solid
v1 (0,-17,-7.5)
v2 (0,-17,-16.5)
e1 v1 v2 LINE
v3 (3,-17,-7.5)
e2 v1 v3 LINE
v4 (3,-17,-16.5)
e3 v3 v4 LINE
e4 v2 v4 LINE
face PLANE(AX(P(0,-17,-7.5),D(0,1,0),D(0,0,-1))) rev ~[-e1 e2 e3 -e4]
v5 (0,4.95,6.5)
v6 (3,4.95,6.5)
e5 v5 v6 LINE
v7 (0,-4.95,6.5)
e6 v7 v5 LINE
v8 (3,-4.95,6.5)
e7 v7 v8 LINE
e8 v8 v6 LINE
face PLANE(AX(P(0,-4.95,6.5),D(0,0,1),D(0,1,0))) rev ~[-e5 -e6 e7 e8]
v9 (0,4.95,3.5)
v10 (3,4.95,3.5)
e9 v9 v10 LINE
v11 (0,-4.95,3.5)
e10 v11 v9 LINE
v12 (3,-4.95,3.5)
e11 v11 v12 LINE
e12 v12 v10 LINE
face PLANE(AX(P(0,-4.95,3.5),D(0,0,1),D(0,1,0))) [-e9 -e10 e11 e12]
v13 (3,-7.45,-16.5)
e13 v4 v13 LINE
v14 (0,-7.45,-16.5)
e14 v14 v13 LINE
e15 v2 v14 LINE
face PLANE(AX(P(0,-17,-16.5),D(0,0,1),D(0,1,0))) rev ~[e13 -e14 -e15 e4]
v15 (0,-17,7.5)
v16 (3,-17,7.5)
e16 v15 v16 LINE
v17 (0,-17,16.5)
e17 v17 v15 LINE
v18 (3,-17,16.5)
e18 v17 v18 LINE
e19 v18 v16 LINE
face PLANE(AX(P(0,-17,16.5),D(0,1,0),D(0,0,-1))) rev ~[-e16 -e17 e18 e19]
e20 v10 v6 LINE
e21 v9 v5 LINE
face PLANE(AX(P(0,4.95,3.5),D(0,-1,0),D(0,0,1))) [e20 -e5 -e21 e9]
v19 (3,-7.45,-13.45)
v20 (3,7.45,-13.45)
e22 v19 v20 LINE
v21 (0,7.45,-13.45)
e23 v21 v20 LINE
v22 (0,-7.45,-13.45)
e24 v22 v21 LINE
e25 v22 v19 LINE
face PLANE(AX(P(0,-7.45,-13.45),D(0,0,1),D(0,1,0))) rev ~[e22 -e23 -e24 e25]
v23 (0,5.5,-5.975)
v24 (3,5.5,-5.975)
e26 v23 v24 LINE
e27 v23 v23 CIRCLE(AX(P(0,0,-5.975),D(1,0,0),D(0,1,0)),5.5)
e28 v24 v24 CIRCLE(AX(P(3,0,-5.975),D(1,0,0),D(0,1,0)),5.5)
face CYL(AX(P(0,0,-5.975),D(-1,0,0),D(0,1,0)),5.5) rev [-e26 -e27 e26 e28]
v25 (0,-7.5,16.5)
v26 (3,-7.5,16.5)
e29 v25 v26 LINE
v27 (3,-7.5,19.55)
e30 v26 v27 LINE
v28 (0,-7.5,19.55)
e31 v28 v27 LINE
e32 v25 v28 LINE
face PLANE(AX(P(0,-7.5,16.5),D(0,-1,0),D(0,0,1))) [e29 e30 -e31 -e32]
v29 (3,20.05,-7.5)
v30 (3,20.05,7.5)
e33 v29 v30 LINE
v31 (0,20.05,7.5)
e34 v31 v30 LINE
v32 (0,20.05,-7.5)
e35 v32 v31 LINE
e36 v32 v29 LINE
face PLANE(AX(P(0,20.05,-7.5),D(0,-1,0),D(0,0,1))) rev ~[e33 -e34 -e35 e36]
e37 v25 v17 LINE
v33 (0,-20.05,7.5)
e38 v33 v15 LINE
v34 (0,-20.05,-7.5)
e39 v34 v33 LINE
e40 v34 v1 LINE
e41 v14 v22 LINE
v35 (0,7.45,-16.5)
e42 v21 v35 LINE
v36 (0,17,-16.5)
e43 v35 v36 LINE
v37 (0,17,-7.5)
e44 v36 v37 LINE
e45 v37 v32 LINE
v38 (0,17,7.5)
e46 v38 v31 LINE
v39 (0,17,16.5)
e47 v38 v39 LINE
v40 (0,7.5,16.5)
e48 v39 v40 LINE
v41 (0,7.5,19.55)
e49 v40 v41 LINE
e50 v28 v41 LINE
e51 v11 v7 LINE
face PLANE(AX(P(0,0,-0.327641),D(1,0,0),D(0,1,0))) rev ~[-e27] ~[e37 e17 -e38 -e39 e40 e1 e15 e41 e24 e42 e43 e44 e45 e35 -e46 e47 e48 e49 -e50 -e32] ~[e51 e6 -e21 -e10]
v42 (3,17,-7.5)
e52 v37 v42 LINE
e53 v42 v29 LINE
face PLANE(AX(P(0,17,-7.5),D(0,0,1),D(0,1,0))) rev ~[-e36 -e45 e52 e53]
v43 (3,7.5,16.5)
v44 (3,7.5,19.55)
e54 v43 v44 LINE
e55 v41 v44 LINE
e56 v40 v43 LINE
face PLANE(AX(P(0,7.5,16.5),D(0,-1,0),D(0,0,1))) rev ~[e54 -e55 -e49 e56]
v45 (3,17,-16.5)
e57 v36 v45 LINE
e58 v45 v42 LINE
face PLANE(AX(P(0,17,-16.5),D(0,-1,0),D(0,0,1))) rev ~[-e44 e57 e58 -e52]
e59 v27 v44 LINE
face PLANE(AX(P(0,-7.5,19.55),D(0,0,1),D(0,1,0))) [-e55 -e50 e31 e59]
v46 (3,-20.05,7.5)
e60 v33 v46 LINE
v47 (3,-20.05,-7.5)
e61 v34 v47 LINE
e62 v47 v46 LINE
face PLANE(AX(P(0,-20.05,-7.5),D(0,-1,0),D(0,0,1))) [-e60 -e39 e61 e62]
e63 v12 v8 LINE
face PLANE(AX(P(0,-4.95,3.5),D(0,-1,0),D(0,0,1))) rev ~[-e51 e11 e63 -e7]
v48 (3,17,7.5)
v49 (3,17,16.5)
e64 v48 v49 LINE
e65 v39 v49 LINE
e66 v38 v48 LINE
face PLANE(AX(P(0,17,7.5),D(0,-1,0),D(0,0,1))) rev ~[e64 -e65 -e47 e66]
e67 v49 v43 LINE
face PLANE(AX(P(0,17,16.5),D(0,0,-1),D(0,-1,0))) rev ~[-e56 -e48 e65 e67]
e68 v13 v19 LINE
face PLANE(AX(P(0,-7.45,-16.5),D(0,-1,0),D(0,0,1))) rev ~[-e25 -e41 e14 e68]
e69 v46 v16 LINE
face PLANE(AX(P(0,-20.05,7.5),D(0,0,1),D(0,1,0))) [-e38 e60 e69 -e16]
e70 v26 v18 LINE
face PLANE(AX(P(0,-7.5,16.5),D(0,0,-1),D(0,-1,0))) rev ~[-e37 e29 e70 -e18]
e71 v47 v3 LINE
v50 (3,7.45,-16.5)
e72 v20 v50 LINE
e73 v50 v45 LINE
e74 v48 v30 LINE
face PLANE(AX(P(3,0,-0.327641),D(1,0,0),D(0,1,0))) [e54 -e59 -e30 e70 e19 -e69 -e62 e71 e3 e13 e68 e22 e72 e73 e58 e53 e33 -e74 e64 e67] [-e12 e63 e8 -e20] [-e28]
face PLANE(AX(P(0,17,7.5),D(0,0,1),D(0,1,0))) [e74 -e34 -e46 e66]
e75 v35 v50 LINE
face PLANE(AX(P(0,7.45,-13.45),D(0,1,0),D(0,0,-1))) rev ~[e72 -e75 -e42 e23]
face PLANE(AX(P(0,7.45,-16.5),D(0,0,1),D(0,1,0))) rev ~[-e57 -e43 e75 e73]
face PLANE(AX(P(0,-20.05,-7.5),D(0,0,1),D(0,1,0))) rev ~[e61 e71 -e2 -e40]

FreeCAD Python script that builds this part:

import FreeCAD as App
import Part
import Sketcher

doc = App.newDocument("Part")
body = doc.addObject("PartDesign::Body", "Body")

sketch1 = body.newObject("Sketcher::SketchObject", "Sketch")
sketch1.AttachmentSupport = (doc.getObject("YZ_Plane"), [""])
sketch1.MapMode = "FlatFace"
sketch1.addGeometry(Part.LineSegment(App.Vector(17, 16.5, 0), App.Vector(7.5, 16.5, 0)), False)
sketch1.addGeometry(Part.LineSegment(App.Vector(7.5, 16.5, 0), App.Vector(7.5, 19.6, 0)), False)
sketch1.addGeometry(Part.LineSegment(App.Vector(7.5, 19.6, 0), App.Vector(-7.5, 19.6, 0)), False)
sketch1.addGeometry(Part.LineSegment(App.Vector(-7.5, 19.6, 0), App.Vector(-7.5, 16.5, 0)), False)
sketch1.addGeometry(Part.LineSegment(App.Vector(-7.5, 16.5, 0), App.Vector(-17, 16.5, 0)), False)
sketch1.addGeometry(Part.LineSegment(App.Vector(-17, 16.5, 0), App.Vector(-17, 7.5, 0)), False)
sketch1.addGeometry(Part.LineSegment(App.Vector(-17, 7.5, 0), App.Vector(-20.1, 7.5, 0)), False)
sketch1.addGeometry(Part.LineSegment(App.Vector(-20.1, 7.5, 0), App.Vector(-20.1, -7.5, 0)), False)
sketch1.addGeometry(Part.LineSegment(App.Vector(-20.1, -7.5, 0), App.Vector(-17, -7.5, 0)), False)
sketch1.addGeometry(Part.LineSegment(App.Vector(-17, -7.5, 0), App.Vector(-17, -16.5, 0)), False)
sketch1.addGeometry(Part.LineSegment(App.Vector(-17, -16.5, 0), App.Vector(-7.5, -16.5, 0)), False)
sketch1.addGeometry(Part.LineSegment(App.Vector(-7.5, -16.5, 0), App.Vector(-7.5, -13.4, 0)), False)
sketch1.addGeometry(Part.LineSegment(App.Vector(-7.5, -13.4, 0), App.Vector(7.5, -13.4, 0)), False)
sketch1.addGeometry(Part.LineSegment(App.Vector(7.5, -13.4, 0), App.Vector(7.5, -16.5, 0)), False)
sketch1.addGeometry(Part.LineSegment(App.Vector(7.5, -16.5, 0), App.Vector(17, -16.5, 0)), False)
sketch1.addGeometry(Part.LineSegment(App.Vector(17, -16.5, 0), App.Vector(17, -7.5, 0)), False)
sketch1.addGeometry(Part.LineSegment(App.Vector(17, -7.5, 0), App.Vector(20.1, -7.5, 0)), False)
sketch1.addGeometry(Part.LineSegment(App.Vector(20.1, -7.5, 0), App.Vector(20.1, 7.5, 0)), False)
sketch1.addGeometry(Part.LineSegment(App.Vector(20.1, 7.5, 0), App.Vector(17, 7.5, 0)), False)
sketch1.addGeometry(Part.LineSegment(App.Vector(17, 7.5, 0), App.Vector(17, 16.5, 0)), False)
sketch1.addGeometry(Part.Circle(App.Vector(0, -6, 0), App.Vector(0, 0, 1), 5.5), False)
sketch1.addGeometry(Part.LineSegment(App.Vector(5, 3.5, 0), App.Vector(-5, 3.5, 0)), False)
sketch1.addGeometry(Part.LineSegment(App.Vector(-5, 3.5, 0), App.Vector(-5, 6.5, 0)), False)
sketch1.addGeometry(Part.LineSegment(App.Vector(-5, 6.5, 0), App.Vector(5, 6.5, 0)), False)
sketch1.addGeometry(Part.LineSegment(App.Vector(5, 6.5, 0), App.Vector(5, 3.5, 0)), False)
sketch1.addConstraint(Sketcher.Constraint("Coincident", 0, 2, 1, 1))
sketch1.addConstraint(Sketcher.Constraint("Coincident", 1, 2, 2, 1))
sketch1.addConstraint(Sketcher.Constraint("Coincident", 2, 2, 3, 1))
sketch1.addConstraint(Sketcher.Constraint("Coincident", 3, 2, 4, 1))
sketch1.addConstraint(Sketcher.Constraint("Coincident", 4, 2, 5, 1))
sketch1.addConstraint(Sketcher.Constraint("Coincident", 5, 2, 6, 1))
sketch1.addConstraint(Sketcher.Constraint("Coincident", 6, 2, 7, 1))
sketch1.addConstraint(Sketcher.Constraint("Coincident", 7, 2, 8, 1))
sketch1.addConstraint(Sketcher.Constraint("Coincident", 8, 2, 9, 1))
sketch1.addConstraint(Sketcher.Constraint("Coincident", 9, 2, 10, 1))
sketch1.addConstraint(Sketcher.Constraint("Coincident", 10, 2, 11, 1))
sketch1.addConstraint(Sketcher.Constraint("Coincident", 11, 2, 12, 1))
sketch1.addConstraint(Sketcher.Constraint("Coincident", 12, 2, 13, 1))
sketch1.addConstraint(Sketcher.Constraint("Coincident", 13, 2, 14, 1))
sketch1.addConstraint(Sketcher.Constraint("Coincident", 14, 2, 15, 1))
sketch1.addConstraint(Sketcher.Constraint("Coincident", 15, 2, 16, 1))
sketch1.addConstraint(Sketcher.Constraint("Coincident", 16, 2, 17, 1))
sketch1.addConstraint(Sketcher.Constraint("Coincident", 17, 2, 18, 1))
sketch1.addConstraint(Sketcher.Constraint("Coincident", 18, 2, 19, 1))
sketch1.addConstraint(Sketcher.Constraint("Coincident", 19, 2, 0, 1))
sketch1.addConstraint(Sketcher.Constraint("Coincident", 21, 2, 22, 1))
sketch1.addConstraint(Sketcher.Constraint("Coincident", 22, 2, 23, 1))
sketch1.addConstraint(Sketcher.Constraint("Coincident", 23, 2, 24, 1))
sketch1.addConstraint(Sketcher.Constraint("Coincident", 24, 2, 21, 1))
sketch1.addConstraint(Sketcher.Constraint("Horizontal", 0))
sketch1.addConstraint(Sketcher.Constraint("Vertical", 1))
sketch1.addConstraint(Sketcher.Constraint("Horizontal", 2))
sketch1.addConstraint(Sketcher.Constraint("Vertical", 3))
sketch1.addConstraint(Sketcher.Constraint("Horizontal", 4))
sketch1.addConstraint(Sketcher.Constraint("Vertical", 5))
sketch1.addConstraint(Sketcher.Constraint("Horizontal", 6))
sketch1.addConstraint(Sketcher.Constraint("Vertical", 7))
sketch1.addConstraint(Sketcher.Constraint("Horizontal", 8))
sketch1.addConstraint(Sketcher.Constraint("Vertical", 9))
sketch1.addConstraint(Sketcher.Constraint("Horizontal", 10))
sketch1.addConstraint(Sketcher.Constraint("Vertical", 11))
sketch1.addConstraint(Sketcher.Constraint("Horizontal", 12))
sketch1.addConstraint(Sketcher.Constraint("Vertical", 13))
sketch1.addConstraint(Sketcher.Constraint("Horizontal", 14))
sketch1.addConstraint(Sketcher.Constraint("Vertical", 15))
sketch1.addConstraint(Sketcher.Constraint("Horizontal", 16))
sketch1.addConstraint(Sketcher.Constraint("Vertical", 17))
sketch1.addConstraint(Sketcher.Constraint("Horizontal", 18))
sketch1.addConstraint(Sketcher.Constraint("Vertical", 19))
sketch1.addConstraint(Sketcher.Constraint("Horizontal", 21))
sketch1.addConstraint(Sketcher.Constraint("Vertical", 22))
sketch1.addConstraint(Sketcher.Constraint("Horizontal", 23))
sketch1.addConstraint(Sketcher.Constraint("Vertical", 24))
sketch1.addConstraint(Sketcher.Constraint("Symmetric", 4, 2, 14, 2, -1, 1))
sketch1.addConstraint(Sketcher.Constraint("Symmetric", 6, 2, 16, 2, -1, 1))
sketch1.addConstraint(Sketcher.Constraint("Symmetric", 8, 2, 18, 2, -1, 1))
sketch1.addConstraint(Sketcher.Constraint("Symmetric", 0, 2, 3, 2, -2))
sketch1.addConstraint(Sketcher.Constraint("Symmetric", 10, 2, 13, 2, -2))
sketch1.addConstraint(Sketcher.Constraint("Symmetric", 8, 2, 15, 2, -2))
sketch1.addConstraint(Sketcher.Constraint("PointOnObject", 20, 3, -2))
sketch1.addConstraint(Sketcher.Constraint("Equal", 18, 1))
sketch1.addConstraint(Sketcher.Constraint("Equal", 2, 7))
sketch1.addConstraint(Sketcher.Constraint("Equal", 3, 11))
sketch1.addConstraint(Sketcher.Constraint("Diameter", 20, 11.0))
sketch1.addConstraint(Sketcher.Constraint("DistanceX", 2, 2, 2, 1, 15.0))
sketch1.addConstraint(Sketcher.Constraint("DistanceY", 5, 2, 5, 1, 9.0))
sketch1.addConstraint(Sketcher.Constraint("DistanceY", 22, 1, 22, 2, 3.0))
sketch1.addConstraint(Sketcher.Constraint("DistanceX", 0, 2, 0, 1, 9.5))
sketch1.addConstraint(Sketcher.Constraint("DistanceX", 12, 1, 12, 2, 14.9))
sketch1.addConstraint(Sketcher.Constraint("DistanceX", 21, 2, 21, 1, 9.9))
sketch1.addConstraint(Sketcher.Constraint("DistanceY", 21, 2, 5, 2, 4.0))
sketch1.addConstraint(Sketcher.Constraint("DistanceX", 6, 2, 6, 1, 3.05))
sketch1.addConstraint(Sketcher.Constraint("DistanceX", 6, 2, 21, 2, 15.1))
sketch1.addConstraint(Sketcher.Constraint("DistanceY", 20, 3, -1, 1, 5.975))
pad1 = body.newObject("PartDesign::Pad", "Pad")
pad1.Profile = sketch1
pad1.Length = 3

doc.recompute()
